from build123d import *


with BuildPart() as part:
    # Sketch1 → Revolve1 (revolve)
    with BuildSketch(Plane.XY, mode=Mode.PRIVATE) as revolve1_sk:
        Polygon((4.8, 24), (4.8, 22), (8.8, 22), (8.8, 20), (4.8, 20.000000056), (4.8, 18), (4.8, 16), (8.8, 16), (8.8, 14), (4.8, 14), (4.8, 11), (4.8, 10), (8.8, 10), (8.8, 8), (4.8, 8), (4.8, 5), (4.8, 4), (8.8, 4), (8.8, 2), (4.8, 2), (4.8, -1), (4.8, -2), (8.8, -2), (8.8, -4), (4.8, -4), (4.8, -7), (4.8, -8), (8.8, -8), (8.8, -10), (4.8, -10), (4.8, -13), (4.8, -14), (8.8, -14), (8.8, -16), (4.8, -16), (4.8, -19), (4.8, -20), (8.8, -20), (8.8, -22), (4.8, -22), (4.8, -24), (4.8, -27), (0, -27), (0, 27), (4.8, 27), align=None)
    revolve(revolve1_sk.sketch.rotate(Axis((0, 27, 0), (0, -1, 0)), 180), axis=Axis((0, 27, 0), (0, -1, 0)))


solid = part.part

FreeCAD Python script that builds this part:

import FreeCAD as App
import Part
import Sketcher

V = App.Vector
Q = App.Units.Quantity

doc = App.newDocument("Part")
body = doc.addObject("PartDesign::Body", "Body")

# Sketch on XY plane
sketch1 = doc.addObject("Sketcher::SketchObject", "Sketch")
body.addObject(sketch1)
sketch1.AttachmentSupport = (doc.XY_Plane, [""])
sketch1.MapMode = "FlatFace"
sketch1.addGeometry([
    Part.LineSegment(V(4.8, 22, 0), V(4.8, 27, 0)),  # 0
    Part.LineSegment(V(4.8, 27, 0), V(0, 27, 0)),  # 1
    Part.LineSegment(V(0, 27, 0), V(0, -27, 0)),  # 2
    Part.LineSegment(V(0, -27, 0), V(4.8, -27, 0)),  # 3
    Part.LineSegment(V(4.8, -27, 0), V(4.8, -22, 0)),  # 4
    Part.LineSegment(V(4.8, -22, 0), V(8.8, -22, 0)),  # 5
    Part.LineSegment(V(8.8, -22, 0), V(8.8, -20, 0)),  # 6
    Part.LineSegment(V(8.8, -20, 0), V(4.8, -20, 0)),  # 7
    Part.LineSegment(V(4.8, -20, 0), V(4.8, -16, 0)),  # 8
    Part.LineSegment(V(4.8, -16, 0), V(8.8, -16, 0)),  # 9
    Part.LineSegment(V(8.8, -16, 0), V(8.8, -14, 0)),  # 10
    Part.LineSegment(V(8.8, -14, 0), V(4.8, -14, 0)),  # 11
    Part.LineSegment(V(4.8, -14, 0), V(4.8, -10, 0)),  # 12
    Part.LineSegment(V(4.8, -10, 0), V(8.8, -10, 0)),  # 13
    Part.LineSegment(V(8.8, -10, 0), V(8.8, -8, 0)),  # 14
    Part.LineSegment(V(8.8, -8, 0), V(4.8, -8, 0)),  # 15
    Part.LineSegment(V(4.8, -8, 0), V(4.8, -4, 0)),  # 16
    Part.LineSegment(V(4.8, -4, 0), V(8.8, -4, 0)),  # 17
    Part.LineSegment(V(8.8, -4, 0), V(8.8, -2, 0)),  # 18
    Part.LineSegment(V(8.8, -2, 0), V(4.8, -2, 0)),  # 19
    Part.LineSegment(V(4.8, -2, 0), V(4.8, 2, 0)),  # 20
    Part.LineSegment(V(4.8, 2, 0), V(8.8, 2, 0)),  # 21
    Part.LineSegment(V(8.8, 2, 0), V(8.8, 4, 0)),  # 22
    Part.LineSegment(V(8.8, 4, 0), V(4.8, 4, 0)),  # 23
    Part.LineSegment(V(4.8, 4, 0), V(4.8, 8, 0)),  # 24
    Part.LineSegment(V(4.8, 8, 0), V(8.8, 8, 0)),  # 25
    Part.LineSegment(V(8.8, 8, 0), V(8.8, 10, 0)),  # 26
    Part.LineSegment(V(8.8, 10, 0), V(4.8, 10, 0)),  # 27
    Part.LineSegment(V(4.8, 10, 0), V(4.8, 14, 0)),  # 28
    Part.LineSegment(V(4.8, 14, 0), V(8.8, 14, 0)),  # 29
    Part.LineSegment(V(8.8, 14, 0), V(8.8, 16, 0)),  # 30
    Part.LineSegment(V(8.8, 16, 0), V(4.8, 16, 0)),  # 31
    Part.LineSegment(V(4.8, 16, 0), V(4.8, 20, 0)),  # 32
    Part.LineSegment(V(4.8, 20, 0), V(8.8, 20, 0)),  # 33
    Part.LineSegment(V(8.8, 20, 0), V(8.8, 22, 0)),  # 34
    Part.LineSegment(V(8.8, 22, 0), V(4.8, 22, 0)),  # 35
], False)
sketch1.addConstraint([
    Sketcher.Constraint("Coincident", 0, 2, 1, 1),
    Sketcher.Constraint("Coincident", 1, 2, 2, 1),
    Sketcher.Constraint("Coincident", 2, 2, 3, 1),
    Sketcher.Constraint("Coincident", 3, 2, 4, 1),
    Sketcher.Constraint("Coincident", 4, 2, 5, 1),
    Sketcher.Constraint("Coincident", 5, 2, 6, 1),
    Sketcher.Constraint("Coincident", 6, 2, 7, 1),
    Sketcher.Constraint("Coincident", 7, 2, 8, 1),
    Sketcher.Constraint("Coincident", 8, 2, 9, 1),
    Sketcher.Constraint("Coincident", 9, 2, 10, 1),
    Sketcher.Constraint("Coincident", 10, 2, 11, 1),
    Sketcher.Constraint("Coincident", 11, 2, 12, 1),
    Sketcher.Constraint("Coincident", 12, 2, 13, 1),
    Sketcher.Constraint("Coincident", 13, 2, 14, 1),
    Sketcher.Constraint("Coincident", 14, 2, 15, 1),
    Sketcher.Constraint("Coincident", 15, 2, 16, 1),
    Sketcher.Constraint("Coincident", 16, 2, 17, 1),
    Sketcher.Constraint("Coincident", 17, 2, 18, 1),
    Sketcher.Constraint("Coincident", 18, 2, 19, 1),
    Sketcher.Constraint("Coincident", 19, 2, 20, 1),
    Sketcher.Constraint("Coincident", 20, 2, 21, 1),
    Sketcher.Constraint("Coincident", 21, 2, 22, 1),
    Sketcher.Constraint("Coincident", 22, 2, 23, 1),
    Sketcher.Constraint("Coincident", 23, 2, 24, 1),
    Sketcher.Constraint("Coincident", 24, 2, 25, 1),
    Sketcher.Constraint("Coincident", 25, 2, 26, 1),
    Sketcher.Constraint("Coincident", 26, 2, 27, 1),
    Sketcher.Constraint("Coincident", 27, 2, 28, 1),
    Sketcher.Constraint("Coincident", 28, 2, 29, 1),
    Sketcher.Constraint("Coincident", 29, 2, 30, 1),
    Sketcher.Constraint("Coincident", 30, 2, 31, 1),
    Sketcher.Constraint("Coincident", 31, 2, 32, 1),
    Sketcher.Constraint("Coincident", 32, 2, 33, 1),
    Sketcher.Constraint("Coincident", 33, 2, 34, 1),
    Sketcher.Constraint("Coincident", 34, 2, 35, 1),
    Sketcher.Constraint("Coincident", 35, 2, 0, 1),
    Sketcher.Constraint("Vertical", 0),
    Sketcher.Constraint("Horizontal", 1),
    Sketcher.Constraint("Vertical", 2),
    Sketcher.Constraint("Horizontal", 3),
    Sketcher.Constraint("Vertical", 4),
    Sketcher.Constraint("Horizontal", 5),
    Sketcher.Constraint("Vertical", 6),
    Sketcher.Constraint("Horizontal", 7),
    Sketcher.Constraint("Vertical", 8),
    Sketcher.Constraint("Horizontal", 9),
    Sketcher.Constraint("Vertical", 10),
    Sketcher.Constraint("Horizontal", 11),
    Sketcher.Constraint("Vertical", 12),
    Sketcher.Constraint("Horizontal", 13),
    Sketcher.Constraint("Vertical", 14),
    Sketcher.Constraint("Horizontal", 15),
    Sketcher.Constraint("Vertical", 16),
    Sketcher.Constraint("Horizontal", 17),
    Sketcher.Constraint("Vertical", 18),
    Sketcher.Constraint("Horizontal", 19),
    Sketcher.Constraint("Vertical", 20),
    Sketcher.Constraint("Horizontal", 21),
    Sketcher.Constraint("Vertical", 22),
    Sketcher.Constraint("Horizontal", 23),
    Sketcher.Constraint("Vertical", 24),
    Sketcher.Constraint("Horizontal", 25),
    Sketcher.Constraint("Vertical", 26),
    Sketcher.Constraint("Horizontal", 27),
    Sketcher.Constraint("Vertical", 28),
    Sketcher.Constraint("Horizontal", 29),
    Sketcher.Constraint("Vertical", 30),
    Sketcher.Constraint("Horizontal", 31),
    Sketcher.Constraint("Vertical", 32),
    Sketcher.Constraint("Horizontal", 33),
    Sketcher.Constraint("Vertical", 34),
    Sketcher.Constraint("Horizontal", 35),
    Sketcher.Constraint("Symmetric", 1, 2, 2, 2, -1, 1),
    Sketcher.Constraint("Symmetric", 18, 2, 21, 2, -1),
    Sketcher.Constraint("Symmetric", 16, 2, 23, 2, -1),
    Sketcher.Constraint("Symmetric", 14, 2, 25, 2, -1),
    Sketcher.Constraint("Symmetric", 12, 2, 27, 2, -1),
    Sketcher.Constraint("Symmetric", 10, 2, 29, 2, -1),
    Sketcher.Constraint("Symmetric", 8, 2, 31, 2, -1),
    Sketcher.Constraint("Symmetric", 6, 2, 33, 2, -1),
    Sketcher.Constraint("Symmetric", 4, 2, 35, 2, -1),
    Sketcher.Constraint("Vertical", 4, 2, 7, 2),
    Sketcher.Constraint("Vertical", 6, 2, 9, 2),
    Sketcher.Constraint("Vertical", 8, 2, 11, 2),
    Sketcher.Constraint("Vertical", 10, 2, 13, 2),
    Sketcher.Constraint("Vertical", 12, 2, 15, 2),
    Sketcher.Constraint("Vertical", 14, 2, 17, 2),
    Sketcher.Constraint("Vertical", 16, 2, 19, 2),
    Sketcher.Constraint("Equal", 35, 8),
    Sketcher.Constraint("Equal", 6, 10),
    Sketcher.Constraint("Equal", 8, 12),
    Sketcher.Constraint("Equal", 10, 14),
    Sketcher.Constraint("Equal", 12, 16),
    Sketcher.Constraint("Equal", 14, 18),
    Sketcher.Constraint("Equal", 16, 20),
    Sketcher.Constraint("DistanceX", 5, 1, 5, 2, Q("4 mm")),
    Sketcher.Constraint("DistanceY", 0, 1, 0, 2, Q("5 mm")),
    Sketcher.Constraint("DistanceY", 2, 2, 2, 1, Q("54 mm")),
    Sketcher.Constraint("DistanceX", 1, 2, 1, 1, Q("4.8 mm")),
])
revolution = doc.addObject("PartDesign::Revolution", "Revolution")
body.addObject(revolution)
revolution.Profile = sketch1
revolution.ReferenceAxis = (sketch1, ["V_Axis"])
revolution.Angle = 360

doc.recompute()
